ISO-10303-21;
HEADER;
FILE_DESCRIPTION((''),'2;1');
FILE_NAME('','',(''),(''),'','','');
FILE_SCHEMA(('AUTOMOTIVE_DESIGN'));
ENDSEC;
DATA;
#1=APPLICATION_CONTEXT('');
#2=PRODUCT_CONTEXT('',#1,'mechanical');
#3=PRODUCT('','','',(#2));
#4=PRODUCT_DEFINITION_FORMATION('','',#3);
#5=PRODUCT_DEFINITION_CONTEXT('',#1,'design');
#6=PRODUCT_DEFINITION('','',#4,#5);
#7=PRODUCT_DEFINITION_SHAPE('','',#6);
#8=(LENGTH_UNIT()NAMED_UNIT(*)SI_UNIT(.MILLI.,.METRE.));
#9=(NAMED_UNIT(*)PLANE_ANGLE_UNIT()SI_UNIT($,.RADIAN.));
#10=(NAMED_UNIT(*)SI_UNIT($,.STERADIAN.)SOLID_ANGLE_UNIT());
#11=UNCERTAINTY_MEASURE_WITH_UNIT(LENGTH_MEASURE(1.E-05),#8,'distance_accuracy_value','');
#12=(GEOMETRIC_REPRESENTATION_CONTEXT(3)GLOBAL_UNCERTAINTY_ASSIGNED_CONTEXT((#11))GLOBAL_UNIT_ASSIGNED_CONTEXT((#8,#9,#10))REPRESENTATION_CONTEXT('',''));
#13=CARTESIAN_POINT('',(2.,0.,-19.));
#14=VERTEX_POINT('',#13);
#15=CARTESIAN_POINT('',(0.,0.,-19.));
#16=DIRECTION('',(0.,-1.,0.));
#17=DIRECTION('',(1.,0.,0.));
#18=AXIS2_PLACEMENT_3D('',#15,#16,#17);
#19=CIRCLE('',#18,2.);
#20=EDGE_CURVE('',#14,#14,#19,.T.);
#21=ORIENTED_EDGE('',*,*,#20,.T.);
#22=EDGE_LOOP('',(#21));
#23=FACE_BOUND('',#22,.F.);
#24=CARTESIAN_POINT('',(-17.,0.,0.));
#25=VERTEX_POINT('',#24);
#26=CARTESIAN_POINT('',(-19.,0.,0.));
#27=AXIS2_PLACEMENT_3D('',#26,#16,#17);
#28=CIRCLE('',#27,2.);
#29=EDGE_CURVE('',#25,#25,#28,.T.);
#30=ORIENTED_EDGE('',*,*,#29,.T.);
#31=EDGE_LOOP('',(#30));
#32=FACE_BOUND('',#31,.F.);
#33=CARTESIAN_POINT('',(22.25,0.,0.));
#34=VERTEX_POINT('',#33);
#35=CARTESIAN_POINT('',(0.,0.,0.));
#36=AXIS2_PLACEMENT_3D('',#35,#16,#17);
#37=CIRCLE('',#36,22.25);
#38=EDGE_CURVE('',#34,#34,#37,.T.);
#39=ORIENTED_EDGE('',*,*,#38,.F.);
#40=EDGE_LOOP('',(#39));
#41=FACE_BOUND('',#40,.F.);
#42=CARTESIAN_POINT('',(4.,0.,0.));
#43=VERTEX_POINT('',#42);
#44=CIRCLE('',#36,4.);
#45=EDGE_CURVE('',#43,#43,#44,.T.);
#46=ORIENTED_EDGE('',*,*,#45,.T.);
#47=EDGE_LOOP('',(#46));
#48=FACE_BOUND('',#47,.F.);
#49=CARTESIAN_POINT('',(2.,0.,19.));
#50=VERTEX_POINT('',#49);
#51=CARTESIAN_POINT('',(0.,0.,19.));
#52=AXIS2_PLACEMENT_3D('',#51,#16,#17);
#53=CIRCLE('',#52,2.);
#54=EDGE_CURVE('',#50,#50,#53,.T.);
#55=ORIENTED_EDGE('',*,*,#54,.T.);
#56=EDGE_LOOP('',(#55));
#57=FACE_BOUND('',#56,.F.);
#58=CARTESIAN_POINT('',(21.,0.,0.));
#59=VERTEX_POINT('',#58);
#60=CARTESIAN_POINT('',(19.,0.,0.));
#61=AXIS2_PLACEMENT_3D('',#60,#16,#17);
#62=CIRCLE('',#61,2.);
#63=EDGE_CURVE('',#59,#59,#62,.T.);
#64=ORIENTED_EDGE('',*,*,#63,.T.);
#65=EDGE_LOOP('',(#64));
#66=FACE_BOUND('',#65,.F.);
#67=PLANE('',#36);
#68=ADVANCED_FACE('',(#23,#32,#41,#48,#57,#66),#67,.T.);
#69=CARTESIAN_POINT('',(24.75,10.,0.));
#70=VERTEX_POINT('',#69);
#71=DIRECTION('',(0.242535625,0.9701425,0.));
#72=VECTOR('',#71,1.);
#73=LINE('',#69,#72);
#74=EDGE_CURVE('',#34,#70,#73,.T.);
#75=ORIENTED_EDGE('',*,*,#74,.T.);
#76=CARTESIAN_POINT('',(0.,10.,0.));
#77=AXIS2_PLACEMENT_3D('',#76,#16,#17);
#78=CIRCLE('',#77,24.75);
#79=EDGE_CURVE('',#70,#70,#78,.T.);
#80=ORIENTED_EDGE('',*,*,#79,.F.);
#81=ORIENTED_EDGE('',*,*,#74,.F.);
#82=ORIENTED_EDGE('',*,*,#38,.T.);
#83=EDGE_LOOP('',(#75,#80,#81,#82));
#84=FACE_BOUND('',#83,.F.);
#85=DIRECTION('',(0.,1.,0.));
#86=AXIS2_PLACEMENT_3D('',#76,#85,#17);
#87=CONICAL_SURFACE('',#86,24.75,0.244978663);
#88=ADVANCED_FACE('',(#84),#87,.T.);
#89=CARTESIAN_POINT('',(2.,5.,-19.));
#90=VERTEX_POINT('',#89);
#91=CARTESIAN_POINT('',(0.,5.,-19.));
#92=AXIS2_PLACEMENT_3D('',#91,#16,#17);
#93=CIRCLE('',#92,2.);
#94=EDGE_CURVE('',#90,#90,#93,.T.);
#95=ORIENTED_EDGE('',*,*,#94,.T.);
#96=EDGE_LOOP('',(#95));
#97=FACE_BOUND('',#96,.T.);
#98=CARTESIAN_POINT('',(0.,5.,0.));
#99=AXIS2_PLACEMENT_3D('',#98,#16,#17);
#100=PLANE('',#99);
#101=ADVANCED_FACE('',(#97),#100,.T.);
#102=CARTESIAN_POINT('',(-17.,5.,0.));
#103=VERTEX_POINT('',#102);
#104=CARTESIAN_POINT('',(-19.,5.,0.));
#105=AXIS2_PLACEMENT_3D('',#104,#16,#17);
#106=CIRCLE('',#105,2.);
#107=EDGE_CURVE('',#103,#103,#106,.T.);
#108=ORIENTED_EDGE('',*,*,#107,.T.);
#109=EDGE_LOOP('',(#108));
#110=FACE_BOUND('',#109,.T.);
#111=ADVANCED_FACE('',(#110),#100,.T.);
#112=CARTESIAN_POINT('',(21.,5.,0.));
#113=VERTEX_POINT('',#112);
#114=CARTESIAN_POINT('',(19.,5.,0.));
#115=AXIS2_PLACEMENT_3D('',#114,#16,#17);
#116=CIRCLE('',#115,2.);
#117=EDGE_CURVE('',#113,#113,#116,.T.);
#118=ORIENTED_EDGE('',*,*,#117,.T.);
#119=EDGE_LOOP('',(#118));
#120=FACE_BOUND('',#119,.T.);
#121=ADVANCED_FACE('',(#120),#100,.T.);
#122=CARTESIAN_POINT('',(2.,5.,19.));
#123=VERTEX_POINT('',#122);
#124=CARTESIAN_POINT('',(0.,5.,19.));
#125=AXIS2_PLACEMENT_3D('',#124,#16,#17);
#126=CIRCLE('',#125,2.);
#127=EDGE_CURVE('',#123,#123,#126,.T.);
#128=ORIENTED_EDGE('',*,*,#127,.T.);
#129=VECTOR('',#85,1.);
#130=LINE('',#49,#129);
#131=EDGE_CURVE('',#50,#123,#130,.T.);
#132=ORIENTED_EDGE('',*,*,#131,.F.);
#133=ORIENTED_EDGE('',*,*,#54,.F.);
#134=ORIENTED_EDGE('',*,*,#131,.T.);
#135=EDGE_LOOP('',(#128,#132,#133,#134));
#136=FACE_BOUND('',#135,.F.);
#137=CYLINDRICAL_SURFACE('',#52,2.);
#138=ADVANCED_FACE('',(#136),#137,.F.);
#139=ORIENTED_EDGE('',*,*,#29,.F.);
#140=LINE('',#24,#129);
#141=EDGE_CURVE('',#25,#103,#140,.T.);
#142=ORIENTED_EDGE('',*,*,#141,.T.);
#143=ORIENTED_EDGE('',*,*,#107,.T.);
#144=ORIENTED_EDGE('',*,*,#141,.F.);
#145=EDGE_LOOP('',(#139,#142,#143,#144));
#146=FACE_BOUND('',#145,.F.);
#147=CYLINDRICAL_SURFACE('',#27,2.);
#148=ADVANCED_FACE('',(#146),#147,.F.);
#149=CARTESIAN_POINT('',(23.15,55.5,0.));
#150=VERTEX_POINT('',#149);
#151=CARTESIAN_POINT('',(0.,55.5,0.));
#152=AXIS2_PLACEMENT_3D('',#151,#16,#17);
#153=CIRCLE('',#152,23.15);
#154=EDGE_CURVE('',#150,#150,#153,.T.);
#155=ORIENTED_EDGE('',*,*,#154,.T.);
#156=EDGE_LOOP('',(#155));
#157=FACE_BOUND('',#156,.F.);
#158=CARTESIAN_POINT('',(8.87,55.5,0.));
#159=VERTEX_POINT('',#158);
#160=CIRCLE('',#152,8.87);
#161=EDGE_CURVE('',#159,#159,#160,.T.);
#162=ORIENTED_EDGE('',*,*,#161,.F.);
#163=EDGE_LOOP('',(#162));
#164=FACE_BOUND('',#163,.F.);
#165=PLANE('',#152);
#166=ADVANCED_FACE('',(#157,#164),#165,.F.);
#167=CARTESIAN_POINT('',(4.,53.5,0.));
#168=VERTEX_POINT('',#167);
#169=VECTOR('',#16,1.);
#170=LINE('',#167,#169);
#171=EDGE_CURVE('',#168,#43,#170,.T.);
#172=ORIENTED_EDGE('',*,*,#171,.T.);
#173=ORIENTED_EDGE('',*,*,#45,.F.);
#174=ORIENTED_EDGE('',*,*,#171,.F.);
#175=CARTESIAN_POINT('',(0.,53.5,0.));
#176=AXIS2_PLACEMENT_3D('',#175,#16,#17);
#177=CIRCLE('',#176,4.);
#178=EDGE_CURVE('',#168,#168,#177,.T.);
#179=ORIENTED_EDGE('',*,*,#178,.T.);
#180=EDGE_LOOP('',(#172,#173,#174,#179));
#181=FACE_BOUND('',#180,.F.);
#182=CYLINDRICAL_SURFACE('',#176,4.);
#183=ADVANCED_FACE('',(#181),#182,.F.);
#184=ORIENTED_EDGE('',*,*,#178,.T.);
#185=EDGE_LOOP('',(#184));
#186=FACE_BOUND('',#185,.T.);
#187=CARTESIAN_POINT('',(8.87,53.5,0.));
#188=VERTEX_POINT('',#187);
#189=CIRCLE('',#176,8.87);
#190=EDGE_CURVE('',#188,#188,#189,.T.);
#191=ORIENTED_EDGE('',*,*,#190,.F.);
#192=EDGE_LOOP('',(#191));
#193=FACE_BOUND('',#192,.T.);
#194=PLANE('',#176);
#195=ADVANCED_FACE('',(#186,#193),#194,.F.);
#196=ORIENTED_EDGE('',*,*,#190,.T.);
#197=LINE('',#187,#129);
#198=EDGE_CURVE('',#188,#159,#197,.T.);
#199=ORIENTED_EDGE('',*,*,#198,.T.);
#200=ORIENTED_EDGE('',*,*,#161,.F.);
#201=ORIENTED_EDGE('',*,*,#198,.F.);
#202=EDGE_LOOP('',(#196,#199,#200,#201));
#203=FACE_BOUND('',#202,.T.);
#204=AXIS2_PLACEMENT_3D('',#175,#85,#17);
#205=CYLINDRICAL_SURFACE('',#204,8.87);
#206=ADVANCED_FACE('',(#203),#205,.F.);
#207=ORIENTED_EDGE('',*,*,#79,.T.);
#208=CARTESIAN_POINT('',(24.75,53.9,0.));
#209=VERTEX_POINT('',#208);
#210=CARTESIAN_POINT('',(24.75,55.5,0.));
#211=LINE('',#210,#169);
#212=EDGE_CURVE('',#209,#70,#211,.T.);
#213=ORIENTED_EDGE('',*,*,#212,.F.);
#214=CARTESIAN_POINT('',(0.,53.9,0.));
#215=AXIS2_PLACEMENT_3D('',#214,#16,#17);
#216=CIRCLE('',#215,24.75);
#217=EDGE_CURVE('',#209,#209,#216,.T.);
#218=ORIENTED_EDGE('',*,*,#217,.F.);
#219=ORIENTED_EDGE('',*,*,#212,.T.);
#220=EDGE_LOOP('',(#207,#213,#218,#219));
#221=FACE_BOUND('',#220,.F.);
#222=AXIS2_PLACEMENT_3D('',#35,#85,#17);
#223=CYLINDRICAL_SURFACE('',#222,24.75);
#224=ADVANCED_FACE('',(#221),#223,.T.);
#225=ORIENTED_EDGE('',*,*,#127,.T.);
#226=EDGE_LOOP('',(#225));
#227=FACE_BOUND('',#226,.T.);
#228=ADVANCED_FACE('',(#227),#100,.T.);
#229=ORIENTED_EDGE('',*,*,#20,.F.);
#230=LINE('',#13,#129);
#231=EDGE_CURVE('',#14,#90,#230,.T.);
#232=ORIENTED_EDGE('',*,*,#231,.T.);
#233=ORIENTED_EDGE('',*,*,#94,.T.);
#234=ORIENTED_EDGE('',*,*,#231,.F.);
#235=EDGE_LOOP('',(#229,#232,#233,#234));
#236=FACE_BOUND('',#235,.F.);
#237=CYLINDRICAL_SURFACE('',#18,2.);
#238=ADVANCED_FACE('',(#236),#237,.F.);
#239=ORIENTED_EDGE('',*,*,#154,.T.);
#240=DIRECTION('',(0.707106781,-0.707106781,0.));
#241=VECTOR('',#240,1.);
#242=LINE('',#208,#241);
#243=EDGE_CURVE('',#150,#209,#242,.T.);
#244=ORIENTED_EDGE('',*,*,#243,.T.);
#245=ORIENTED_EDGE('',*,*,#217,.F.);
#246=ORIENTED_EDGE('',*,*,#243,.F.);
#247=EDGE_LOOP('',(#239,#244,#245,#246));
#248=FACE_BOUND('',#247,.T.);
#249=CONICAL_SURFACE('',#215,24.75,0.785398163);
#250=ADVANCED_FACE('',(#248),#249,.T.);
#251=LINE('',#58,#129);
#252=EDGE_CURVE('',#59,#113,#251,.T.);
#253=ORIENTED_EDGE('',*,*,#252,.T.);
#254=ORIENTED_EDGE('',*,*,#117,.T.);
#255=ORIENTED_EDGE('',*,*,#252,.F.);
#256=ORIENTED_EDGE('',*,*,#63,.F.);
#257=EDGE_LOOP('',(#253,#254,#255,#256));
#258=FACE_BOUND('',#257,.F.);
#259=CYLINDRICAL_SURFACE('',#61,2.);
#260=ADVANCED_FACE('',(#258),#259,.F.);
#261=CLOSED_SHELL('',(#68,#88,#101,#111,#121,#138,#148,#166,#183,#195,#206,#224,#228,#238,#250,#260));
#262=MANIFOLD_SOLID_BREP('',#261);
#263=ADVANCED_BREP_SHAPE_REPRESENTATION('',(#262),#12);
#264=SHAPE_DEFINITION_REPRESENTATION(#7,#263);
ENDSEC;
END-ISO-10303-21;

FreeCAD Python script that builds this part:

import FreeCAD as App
import Part
import Sketcher
Q = App.Units.Quantity


def edges_at(feature, points):
    """Names of the edges that pass closest to the given points."""
    edges = feature.Shape.Edges
    near = lambda p: min(range(len(edges)), key=lambda i: edges[i].distToShape(Part.Vertex(*p))[0])
    return sorted({f"Edge{near(p) + 1}" for p in points})

doc = App.newDocument("Part")
body = doc.addObject("PartDesign::Body", "Body")

# Sketch on XY plane
sketch1 = body.newObject("Sketcher::SketchObject", "Sketch")
sketch1.AttachmentSupport = (doc.getObject("XY_Plane"), [""])
sketch1.MapMode = "FlatFace"
sketch1.addGeometry([
    Part.LineSegment(App.Vector(8.9, 53.5, 0), App.Vector(4, 53.5, 0)),  # 0
    Part.LineSegment(App.Vector(4, 53.5, 0), App.Vector(4, 0, 0)),  # 1
    Part.LineSegment(App.Vector(4, 0, 0), App.Vector(24.8, 0, 0)),  # 2
    Part.LineSegment(App.Vector(24.8, 0, 0), App.Vector(24.8, 55.5, 0)),  # 3
    Part.LineSegment(App.Vector(24.8, 55.5, 0), App.Vector(8.9, 55.5, 0)),  # 4
    Part.LineSegment(App.Vector(8.9, 55.5, 0), App.Vector(8.9, 53.5, 0)),  # 5
], False)
sketch1.addConstraint([
    Sketcher.Constraint("Coincident", 0, 2, 1, 1),
    Sketcher.Constraint("Coincident", 1, 2, 2, 1),
    Sketcher.Constraint("Coincident", 2, 2, 3, 1),
    Sketcher.Constraint("Coincident", 3, 2, 4, 1),
    Sketcher.Constraint("Coincident", 4, 2, 5, 1),
    Sketcher.Constraint("Coincident", 5, 2, 0, 1),
    Sketcher.Constraint("Horizontal", 0),
    Sketcher.Constraint("Vertical", 1),
    Sketcher.Constraint("Horizontal", 2),
    Sketcher.Constraint("Vertical", 3),
    Sketcher.Constraint("Horizontal", 4),
    Sketcher.Constraint("Vertical", 5),
    Sketcher.Constraint("PointOnObject", 1, 2, -1),
    Sketcher.Constraint("DistanceY", 5, 2, 5, 1, Q("2 mm")),
    Sketcher.Constraint("DistanceY", 3, 1, 3, 2, Q("55.5 mm")),
    Sketcher.Constraint("DistanceX", -1, 1, 0, 2, Q("4 mm")),
    Sketcher.Constraint("DistanceX", 0, 2, 0, 1, Q("4.87 mm")),
    Sketcher.Constraint("DistanceX", 2, 1, 2, 2, Q("20.75 mm")),
])
revolution = body.newObject("PartDesign::Revolution", "Revolution")
revolution.Profile = sketch1
revolution.ReferenceAxis = (sketch1, ["V_Axis"])
revolution.Angle = 360

# Sketch on XZ plane
sketch2 = body.newObject("Sketcher::SketchObject", "Sketch001")
sketch2.AttachmentSupport = (doc.getObject("XZ_Plane"), [""])
sketch2.MapMode = "FlatFace"
sketch2.addGeometry([
    Part.Circle(App.Vector(19, 0, 0), App.Vector(0, 0, 1), 2),
    Part.Circle(App.Vector(0, 19, 0), App.Vector(0, 0, 1), 2),
    Part.Circle(App.Vector(-19, 0, 0), App.Vector(0, 0, 1), 2),
    Part.Circle(App.Vector(0, -19, 0), App.Vector(0, 0, 1), 2),
], False)
sketch2.addConstraint([
    Sketcher.Constraint("Equal", 0, 1),
    Sketcher.Constraint("Equal", 1, 2),
    Sketcher.Constraint("Equal", 2, 3),
    Sketcher.Constraint("Symmetric", 0, 3, 2, 3, -1, 1),
    Sketcher.Constraint("Symmetric", 1, 3, 3, 3, -1, 1),
    Sketcher.Constraint("PointOnObject", 0, 3, -1),
    Sketcher.Constraint("PointOnObject", 1, 3, -2),
    Sketcher.Constraint("Diameter", 0, Q("4 mm")),
    Sketcher.Constraint("DistanceX", -1, 1, 0, 3, Q("19 mm")),
    Sketcher.Constraint("DistanceY", -1, 1, 1, 3, Q("19 mm")),
])
pocket1 = body.newObject("PartDesign::Pocket", "Pocket")
pocket1.Profile = sketch2
pocket1.Length = 5
doc.recompute()

chamfer = body.newObject("PartDesign::Chamfer", "Chamfer")
chamfer.Base = (pocket1, edges_at(pocket1, [(-24.75, 55.5, 0)]))
chamfer.Size = 1.6
doc.recompute()

chamfer2 = body.newObject("PartDesign::Chamfer", "Chamfer001")
chamfer2.Base = (chamfer, edges_at(chamfer, [(-24.75, 0, 0)]))
chamfer2.ChamferType = "Two distances"
chamfer2.Size = 2.5
chamfer2.Size2 = 10
chamfer2.FlipDirection = True

doc.recompute()
